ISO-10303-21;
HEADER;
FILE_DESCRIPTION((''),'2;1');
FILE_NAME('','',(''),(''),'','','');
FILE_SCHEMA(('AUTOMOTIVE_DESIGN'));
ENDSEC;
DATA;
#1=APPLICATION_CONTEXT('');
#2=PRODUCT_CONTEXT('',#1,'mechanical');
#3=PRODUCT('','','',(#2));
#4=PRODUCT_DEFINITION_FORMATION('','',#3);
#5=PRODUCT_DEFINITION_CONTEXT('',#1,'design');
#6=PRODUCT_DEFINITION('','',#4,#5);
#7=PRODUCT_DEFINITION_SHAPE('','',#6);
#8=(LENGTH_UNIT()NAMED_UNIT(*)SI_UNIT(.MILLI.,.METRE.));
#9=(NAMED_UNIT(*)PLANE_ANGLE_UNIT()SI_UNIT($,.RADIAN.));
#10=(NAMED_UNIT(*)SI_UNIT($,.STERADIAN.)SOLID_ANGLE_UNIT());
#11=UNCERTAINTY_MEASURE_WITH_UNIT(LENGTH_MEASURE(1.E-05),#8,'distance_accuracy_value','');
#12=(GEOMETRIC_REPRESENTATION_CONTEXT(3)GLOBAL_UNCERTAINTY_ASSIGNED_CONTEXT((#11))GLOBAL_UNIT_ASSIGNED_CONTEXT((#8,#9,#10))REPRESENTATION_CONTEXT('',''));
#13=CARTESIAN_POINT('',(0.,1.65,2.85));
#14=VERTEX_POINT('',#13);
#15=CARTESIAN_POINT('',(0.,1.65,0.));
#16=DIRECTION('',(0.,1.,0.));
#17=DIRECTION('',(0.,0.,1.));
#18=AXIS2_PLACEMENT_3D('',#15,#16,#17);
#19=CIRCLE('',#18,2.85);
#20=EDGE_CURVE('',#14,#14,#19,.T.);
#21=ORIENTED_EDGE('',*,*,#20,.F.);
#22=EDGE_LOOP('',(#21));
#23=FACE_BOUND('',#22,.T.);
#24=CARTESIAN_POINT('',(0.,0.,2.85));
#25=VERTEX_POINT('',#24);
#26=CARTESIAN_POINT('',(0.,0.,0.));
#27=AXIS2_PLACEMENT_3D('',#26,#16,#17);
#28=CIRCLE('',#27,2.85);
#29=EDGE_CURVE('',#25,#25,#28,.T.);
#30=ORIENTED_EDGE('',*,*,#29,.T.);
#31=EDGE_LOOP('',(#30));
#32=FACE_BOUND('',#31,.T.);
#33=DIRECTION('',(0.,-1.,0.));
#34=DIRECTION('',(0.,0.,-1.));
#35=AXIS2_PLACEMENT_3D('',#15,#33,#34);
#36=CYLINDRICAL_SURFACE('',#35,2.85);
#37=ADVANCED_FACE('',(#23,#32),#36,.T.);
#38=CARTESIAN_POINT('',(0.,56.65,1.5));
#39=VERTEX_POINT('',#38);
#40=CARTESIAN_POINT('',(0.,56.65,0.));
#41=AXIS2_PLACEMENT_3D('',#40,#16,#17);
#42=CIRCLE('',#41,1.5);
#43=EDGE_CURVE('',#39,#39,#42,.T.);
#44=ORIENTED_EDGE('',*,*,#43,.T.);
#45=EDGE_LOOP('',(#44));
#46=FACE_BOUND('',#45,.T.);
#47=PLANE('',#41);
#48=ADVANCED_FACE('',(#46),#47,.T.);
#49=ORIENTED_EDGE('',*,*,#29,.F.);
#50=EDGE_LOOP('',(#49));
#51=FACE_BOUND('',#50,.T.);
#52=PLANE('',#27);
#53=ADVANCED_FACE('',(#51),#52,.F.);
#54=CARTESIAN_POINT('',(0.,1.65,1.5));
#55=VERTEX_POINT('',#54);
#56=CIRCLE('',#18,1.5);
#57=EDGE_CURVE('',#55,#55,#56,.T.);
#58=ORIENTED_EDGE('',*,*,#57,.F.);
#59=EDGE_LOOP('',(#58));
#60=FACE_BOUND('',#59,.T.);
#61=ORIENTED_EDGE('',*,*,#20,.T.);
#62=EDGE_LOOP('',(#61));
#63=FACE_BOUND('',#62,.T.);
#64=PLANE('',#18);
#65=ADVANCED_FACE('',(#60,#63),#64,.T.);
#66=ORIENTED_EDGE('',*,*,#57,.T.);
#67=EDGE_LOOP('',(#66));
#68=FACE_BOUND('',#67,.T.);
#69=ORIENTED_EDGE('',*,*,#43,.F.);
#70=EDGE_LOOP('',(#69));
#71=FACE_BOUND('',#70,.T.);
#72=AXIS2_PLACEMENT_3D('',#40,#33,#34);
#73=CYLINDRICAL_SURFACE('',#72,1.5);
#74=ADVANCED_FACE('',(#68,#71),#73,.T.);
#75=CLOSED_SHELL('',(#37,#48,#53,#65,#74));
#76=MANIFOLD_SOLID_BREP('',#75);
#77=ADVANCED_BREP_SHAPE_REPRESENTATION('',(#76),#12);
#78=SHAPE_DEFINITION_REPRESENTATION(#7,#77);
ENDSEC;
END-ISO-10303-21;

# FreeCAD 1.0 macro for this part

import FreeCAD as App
import Part
import Sketcher

V = App.Vector
Q = App.Units.Quantity

doc = App.newDocument("Part")
params = doc.addObject("Spreadsheet::Sheet", "Params")
for row, (alias, value) in enumerate([
    ("sketch1_diameter", "5.7 mm"),
    ("pad1_length", "1.65 mm"),
    ("sketch2_diameter", "3 mm"),
    ("pad2_length", "55 mm"),
], start=1):
    params.set(f"A{row}", alias)
    params.set(f"B{row}", "=" + value)
    params.setAlias(f"B{row}", alias)

body = doc.addObject("PartDesign::Body", "Body")

# Sketch on XZ plane
sketch1 = body.newObject("Sketcher::SketchObject", "Sketch")
sketch1.AttachmentSupport = (doc.getObject("XZ_Plane"), [""])
sketch1.MapMode = "FlatFace"
sketch1.addGeometry(Part.Circle(V(0, 0, 0), V(0, 0, 1), 2.9), False)
sketch1.addConstraint([
    Sketcher.Constraint("Coincident", 0, 3, -1, 1),
    Sketcher.Constraint("Diameter", 0, Q("5.7 mm")),
])
sketch1.setExpression("Constraints[1]", "Params.sketch1_diameter")
pad1 = body.newObject("PartDesign::Pad", "Pad")
pad1.Profile = sketch1
pad1.setExpression("Length", "Params.pad1_length")
pad1.Reversed = True

# Sketch on XZ plane
sketch2 = body.newObject("Sketcher::SketchObject", "Sketch001")
sketch2.AttachmentSupport = (doc.getObject("XZ_Plane"), [""])
sketch2.MapMode = "FlatFace"
sketch2.AttachmentOffset = App.Placement(V(0, 0, -1.65), App.Rotation())
sketch2.addGeometry(Part.Circle(V(0, 0, 0), V(0, 0, 1), 1.5), False)
sketch2.addConstraint([
    Sketcher.Constraint("Coincident", 0, 3, -1, 1),
    Sketcher.Constraint("Diameter", 0, Q("3 mm")),
])
sketch2.setExpression("Constraints[1]", "Params.sketch2_diameter")
pad2 = body.newObject("PartDesign::Pad", "Pad001")
pad2.Profile = sketch2
pad2.setExpression("Length", "Params.pad2_length")
pad2.Reversed = True

doc.recompute()
